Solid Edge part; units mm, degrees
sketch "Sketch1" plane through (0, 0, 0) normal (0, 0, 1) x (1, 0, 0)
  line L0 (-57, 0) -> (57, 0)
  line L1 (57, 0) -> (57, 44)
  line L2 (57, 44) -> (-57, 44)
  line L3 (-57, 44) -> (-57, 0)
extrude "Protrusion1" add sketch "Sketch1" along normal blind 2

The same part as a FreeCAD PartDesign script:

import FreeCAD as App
import Part
import Sketcher
Q = App.Units.Quantity

doc = App.newDocument("Part")
body = doc.addObject("PartDesign::Body", "Body")

# Sketch on XY plane
sketch1 = body.newObject("Sketcher::SketchObject", "Sketch")
sketch1.AttachmentSupport = (doc.getObject("XY_Plane"), [""])
sketch1.MapMode = "FlatFace"
sketch1.addGeometry([
    Part.LineSegment(App.Vector(-57, 44, 0), App.Vector(-57, 0, 0)),
    Part.LineSegment(App.Vector(-57, 0, 0), App.Vector(57, 0, 0)),
    Part.LineSegment(App.Vector(57, 0, 0), App.Vector(57, 44, 0)),
    Part.LineSegment(App.Vector(57, 44, 0), App.Vector(-57, 44, 0)),
], False)
sketch1.addConstraint([
    Sketcher.Constraint("Coincident", 0, 2, 1, 1),
    Sketcher.Constraint("Coincident", 1, 2, 2, 1),
    Sketcher.Constraint("Coincident", 2, 2, 3, 1),
    Sketcher.Constraint("Coincident", 3, 2, 0, 1),
    Sketcher.Constraint("Vertical", 0),
    Sketcher.Constraint("Horizontal", 1),
    Sketcher.Constraint("Vertical", 2),
    Sketcher.Constraint("Horizontal", 3),
    Sketcher.Constraint("Symmetric", 0, 2, 1, 2, -1, 1),
    Sketcher.Constraint("DistanceX", 1, 1, 1, 2, Q("114 mm")),
    Sketcher.Constraint("DistanceY", 0, 2, 0, 1, Q("44 mm")),
])
pad1 = body.newObject("PartDesign::Pad", "Pad")
pad1.Profile = sketch1
pad1.Length = 2

doc.recompute()
